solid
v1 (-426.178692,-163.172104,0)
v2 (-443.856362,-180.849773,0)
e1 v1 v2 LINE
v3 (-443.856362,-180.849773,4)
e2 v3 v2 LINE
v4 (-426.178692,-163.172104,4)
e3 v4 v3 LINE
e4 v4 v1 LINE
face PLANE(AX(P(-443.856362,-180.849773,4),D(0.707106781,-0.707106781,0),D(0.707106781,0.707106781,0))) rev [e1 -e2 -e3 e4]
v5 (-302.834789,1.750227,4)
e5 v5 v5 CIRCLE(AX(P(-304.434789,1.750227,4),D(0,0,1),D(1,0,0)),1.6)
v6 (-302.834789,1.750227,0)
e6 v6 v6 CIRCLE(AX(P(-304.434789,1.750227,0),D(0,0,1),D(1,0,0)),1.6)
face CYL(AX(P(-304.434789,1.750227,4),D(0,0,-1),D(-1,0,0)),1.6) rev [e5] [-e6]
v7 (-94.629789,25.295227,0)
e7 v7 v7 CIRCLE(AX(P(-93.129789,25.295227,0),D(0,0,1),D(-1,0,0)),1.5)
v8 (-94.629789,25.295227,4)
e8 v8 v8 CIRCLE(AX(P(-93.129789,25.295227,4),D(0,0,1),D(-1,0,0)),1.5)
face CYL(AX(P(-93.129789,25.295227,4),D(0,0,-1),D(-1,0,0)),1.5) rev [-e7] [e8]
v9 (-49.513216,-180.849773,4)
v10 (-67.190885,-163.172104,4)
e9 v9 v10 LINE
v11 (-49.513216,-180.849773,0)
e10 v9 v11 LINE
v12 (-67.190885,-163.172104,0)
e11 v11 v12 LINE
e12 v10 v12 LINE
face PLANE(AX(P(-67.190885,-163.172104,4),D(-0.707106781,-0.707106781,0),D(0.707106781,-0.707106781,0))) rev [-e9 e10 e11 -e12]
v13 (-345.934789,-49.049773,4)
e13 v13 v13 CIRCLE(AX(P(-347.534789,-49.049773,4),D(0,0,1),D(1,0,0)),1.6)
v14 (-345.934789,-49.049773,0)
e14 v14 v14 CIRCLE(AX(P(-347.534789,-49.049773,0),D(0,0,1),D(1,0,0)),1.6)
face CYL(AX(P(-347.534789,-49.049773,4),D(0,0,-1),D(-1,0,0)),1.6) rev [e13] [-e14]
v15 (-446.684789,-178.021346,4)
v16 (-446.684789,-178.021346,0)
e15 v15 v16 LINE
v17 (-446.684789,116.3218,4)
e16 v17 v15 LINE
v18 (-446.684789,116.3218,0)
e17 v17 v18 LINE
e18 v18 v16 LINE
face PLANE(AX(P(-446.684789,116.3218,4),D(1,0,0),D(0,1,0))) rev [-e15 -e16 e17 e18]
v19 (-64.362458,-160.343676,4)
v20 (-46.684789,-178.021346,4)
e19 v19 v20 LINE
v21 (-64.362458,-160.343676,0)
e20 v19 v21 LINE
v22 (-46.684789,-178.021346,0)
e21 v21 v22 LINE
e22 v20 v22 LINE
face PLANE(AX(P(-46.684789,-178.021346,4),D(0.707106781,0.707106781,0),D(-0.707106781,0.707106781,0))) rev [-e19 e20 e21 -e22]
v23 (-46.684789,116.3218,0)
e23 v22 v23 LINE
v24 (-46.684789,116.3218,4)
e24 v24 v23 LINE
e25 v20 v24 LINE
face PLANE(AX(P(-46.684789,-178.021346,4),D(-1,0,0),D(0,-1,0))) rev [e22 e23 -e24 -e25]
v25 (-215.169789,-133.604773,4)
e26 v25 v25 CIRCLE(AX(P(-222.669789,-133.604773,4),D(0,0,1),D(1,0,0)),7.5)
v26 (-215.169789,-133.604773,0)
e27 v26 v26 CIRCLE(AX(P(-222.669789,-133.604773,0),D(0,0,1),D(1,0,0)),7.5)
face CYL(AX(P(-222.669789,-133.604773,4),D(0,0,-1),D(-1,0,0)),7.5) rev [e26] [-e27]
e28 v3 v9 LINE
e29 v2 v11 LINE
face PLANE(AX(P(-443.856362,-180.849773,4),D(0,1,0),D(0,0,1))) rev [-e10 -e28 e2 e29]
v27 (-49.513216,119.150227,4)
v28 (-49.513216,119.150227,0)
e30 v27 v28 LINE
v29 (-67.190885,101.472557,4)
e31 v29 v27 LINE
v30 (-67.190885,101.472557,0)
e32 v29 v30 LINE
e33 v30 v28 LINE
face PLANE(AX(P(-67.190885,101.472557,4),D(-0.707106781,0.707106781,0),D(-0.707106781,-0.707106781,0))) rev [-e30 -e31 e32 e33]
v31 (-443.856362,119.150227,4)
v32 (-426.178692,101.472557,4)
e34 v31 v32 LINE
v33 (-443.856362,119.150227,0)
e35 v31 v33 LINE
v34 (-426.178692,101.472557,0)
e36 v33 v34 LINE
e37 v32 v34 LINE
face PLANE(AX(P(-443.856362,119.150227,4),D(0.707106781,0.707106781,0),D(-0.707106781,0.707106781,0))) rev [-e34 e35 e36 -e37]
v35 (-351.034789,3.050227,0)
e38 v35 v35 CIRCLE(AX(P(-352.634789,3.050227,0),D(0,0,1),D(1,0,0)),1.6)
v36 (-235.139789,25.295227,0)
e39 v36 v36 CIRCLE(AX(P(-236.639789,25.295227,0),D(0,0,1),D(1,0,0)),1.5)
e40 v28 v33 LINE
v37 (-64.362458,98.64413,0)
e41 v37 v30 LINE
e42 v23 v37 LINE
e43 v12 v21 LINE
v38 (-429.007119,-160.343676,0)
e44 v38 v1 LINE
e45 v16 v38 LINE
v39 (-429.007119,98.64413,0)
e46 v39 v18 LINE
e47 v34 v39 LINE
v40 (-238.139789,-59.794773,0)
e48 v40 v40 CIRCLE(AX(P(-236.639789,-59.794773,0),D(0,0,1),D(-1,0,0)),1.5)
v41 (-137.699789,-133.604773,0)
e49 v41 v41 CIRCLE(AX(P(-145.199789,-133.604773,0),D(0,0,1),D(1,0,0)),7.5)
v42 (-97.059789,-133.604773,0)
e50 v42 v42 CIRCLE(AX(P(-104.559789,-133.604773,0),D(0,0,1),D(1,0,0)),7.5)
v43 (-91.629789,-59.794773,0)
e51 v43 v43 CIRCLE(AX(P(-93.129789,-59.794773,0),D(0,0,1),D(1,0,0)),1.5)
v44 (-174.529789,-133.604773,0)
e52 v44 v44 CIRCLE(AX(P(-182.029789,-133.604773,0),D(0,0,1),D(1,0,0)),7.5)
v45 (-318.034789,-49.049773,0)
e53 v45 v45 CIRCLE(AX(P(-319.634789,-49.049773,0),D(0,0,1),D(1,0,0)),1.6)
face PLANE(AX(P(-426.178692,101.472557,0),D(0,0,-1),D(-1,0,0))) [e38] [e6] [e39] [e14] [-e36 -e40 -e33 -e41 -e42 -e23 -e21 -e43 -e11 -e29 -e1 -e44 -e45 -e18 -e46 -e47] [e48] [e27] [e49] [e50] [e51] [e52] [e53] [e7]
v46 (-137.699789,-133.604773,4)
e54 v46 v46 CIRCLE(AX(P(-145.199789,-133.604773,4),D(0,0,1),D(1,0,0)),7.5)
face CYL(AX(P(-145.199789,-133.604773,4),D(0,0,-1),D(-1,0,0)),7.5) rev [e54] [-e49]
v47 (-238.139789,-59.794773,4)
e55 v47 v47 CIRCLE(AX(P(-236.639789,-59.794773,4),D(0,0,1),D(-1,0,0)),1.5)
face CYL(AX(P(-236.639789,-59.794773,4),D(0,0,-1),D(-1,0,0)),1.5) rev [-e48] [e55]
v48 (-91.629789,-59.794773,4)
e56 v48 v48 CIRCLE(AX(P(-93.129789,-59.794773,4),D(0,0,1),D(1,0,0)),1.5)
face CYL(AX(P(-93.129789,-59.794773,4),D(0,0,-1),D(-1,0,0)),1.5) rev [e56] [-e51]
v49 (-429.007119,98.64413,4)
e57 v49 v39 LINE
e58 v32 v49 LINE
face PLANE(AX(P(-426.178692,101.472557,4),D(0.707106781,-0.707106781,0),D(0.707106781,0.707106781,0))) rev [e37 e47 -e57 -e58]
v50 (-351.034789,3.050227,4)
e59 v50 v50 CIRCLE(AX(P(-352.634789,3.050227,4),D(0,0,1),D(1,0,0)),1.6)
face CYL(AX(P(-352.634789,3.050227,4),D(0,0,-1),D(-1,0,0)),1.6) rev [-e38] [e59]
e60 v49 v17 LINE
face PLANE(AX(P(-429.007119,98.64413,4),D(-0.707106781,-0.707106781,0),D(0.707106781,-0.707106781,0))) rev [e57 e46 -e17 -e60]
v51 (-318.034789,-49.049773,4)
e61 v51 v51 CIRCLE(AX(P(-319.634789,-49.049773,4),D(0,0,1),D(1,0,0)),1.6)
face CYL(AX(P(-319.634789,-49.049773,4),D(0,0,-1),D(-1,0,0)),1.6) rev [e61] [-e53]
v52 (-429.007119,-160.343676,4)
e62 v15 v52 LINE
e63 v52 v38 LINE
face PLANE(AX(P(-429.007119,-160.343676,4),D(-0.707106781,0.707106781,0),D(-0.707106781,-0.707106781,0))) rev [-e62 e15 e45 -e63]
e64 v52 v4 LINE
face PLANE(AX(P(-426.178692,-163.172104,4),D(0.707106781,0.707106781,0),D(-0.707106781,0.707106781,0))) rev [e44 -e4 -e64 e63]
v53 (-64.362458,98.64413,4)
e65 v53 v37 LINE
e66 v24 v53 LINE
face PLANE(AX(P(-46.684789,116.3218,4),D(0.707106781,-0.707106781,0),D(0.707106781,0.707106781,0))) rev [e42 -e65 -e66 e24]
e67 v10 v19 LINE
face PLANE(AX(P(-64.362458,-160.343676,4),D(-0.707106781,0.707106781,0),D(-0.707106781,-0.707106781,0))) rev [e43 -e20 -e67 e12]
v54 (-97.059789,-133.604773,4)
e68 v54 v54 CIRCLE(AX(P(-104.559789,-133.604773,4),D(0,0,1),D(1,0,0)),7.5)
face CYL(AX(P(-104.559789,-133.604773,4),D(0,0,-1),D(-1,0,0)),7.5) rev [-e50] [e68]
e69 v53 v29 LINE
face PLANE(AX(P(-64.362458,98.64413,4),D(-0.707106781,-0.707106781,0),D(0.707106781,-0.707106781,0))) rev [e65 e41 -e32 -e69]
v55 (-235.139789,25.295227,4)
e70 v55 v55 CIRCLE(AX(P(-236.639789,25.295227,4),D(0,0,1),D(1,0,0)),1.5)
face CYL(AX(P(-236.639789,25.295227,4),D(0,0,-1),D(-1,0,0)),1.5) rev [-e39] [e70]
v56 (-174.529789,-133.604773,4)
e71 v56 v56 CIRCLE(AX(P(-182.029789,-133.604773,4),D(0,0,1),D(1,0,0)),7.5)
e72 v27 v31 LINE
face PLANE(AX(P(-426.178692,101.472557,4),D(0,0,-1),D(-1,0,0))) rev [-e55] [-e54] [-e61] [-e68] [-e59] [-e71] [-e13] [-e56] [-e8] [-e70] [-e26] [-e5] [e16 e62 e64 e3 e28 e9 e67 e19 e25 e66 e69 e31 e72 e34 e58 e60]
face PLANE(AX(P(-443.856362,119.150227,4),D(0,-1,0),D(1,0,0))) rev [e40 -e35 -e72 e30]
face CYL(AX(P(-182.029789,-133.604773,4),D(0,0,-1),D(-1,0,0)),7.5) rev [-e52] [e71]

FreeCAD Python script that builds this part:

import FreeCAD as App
import Part
import Sketcher
Q = App.Units.Quantity


def add_polygon(sketch, points):
    """Adds a closed chain of lines whose ends are joined by coincident constraints."""
    first, n = sketch.GeometryCount, len(points)
    for a, b in zip(points, points[1:] + points[:1]):
        sketch.addGeometry(Part.LineSegment(App.Vector(*a, 0), App.Vector(*b, 0)), False)
    for i in range(n):
        sketch.addConstraint(Sketcher.Constraint("Coincident", first + i, 2, first + (i + 1) % n, 1))

doc = App.newDocument("Part")
body = doc.addObject("PartDesign::Body", "Body")

# Sketch on XY plane
sketch1 = body.newObject("Sketcher::SketchObject", "Sketch")
sketch1.AttachmentSupport = (doc.getObject("XY_Plane"), [""])
sketch1.MapMode = "FlatFace"
add_polygon(sketch1, [(-49.513216, 119.150227), (-443.856362, 119.150227), (-426.178692, 101.472557), (-429.007119, 98.64413), (-446.684789, 116.3218), (-446.684789, -178.021346), (-429.007119, -160.343676), (-426.178692, -163.172104), (-443.856362, -180.849773), (-49.513216, -180.849773), (-67.190885, -163.172104), (-64.362458, -160.343676), (-46.684789, -178.021346), (-46.684789, 116.3218), (-64.362458, 98.64413), (-67.190885, 101.472557)])  # lines 0-15
sketch1.addGeometry(Part.Circle(App.Vector(-104.559789, -133.604773, 0), App.Vector(0, 0, 1), 7.5), False)  # 16
sketch1.addGeometry(Part.Circle(App.Vector(-145.199789, -133.604773, 0), App.Vector(0, 0, 1), 7.5), False)  # 17
sketch1.addGeometry(Part.Circle(App.Vector(-182.029789, -133.604773, 0), App.Vector(0, 0, 1), 7.5), False)  # 18
sketch1.addGeometry(Part.Circle(App.Vector(-222.669789, -133.604773, 0), App.Vector(0, 0, 1), 7.5), False)  # 19
sketch1.addGeometry(Part.Circle(App.Vector(-93.129789, -59.794773, 0), App.Vector(0, 0, 1), 1.5), False)  # 20
sketch1.addGeometry(Part.Circle(App.Vector(-236.639789, -59.794773, 0), App.Vector(0, 0, 1), 1.5), False)  # 21
sketch1.addGeometry(Part.Circle(App.Vector(-93.129789, 25.295227, 0), App.Vector(0, 0, 1), 1.5), False)  # 22
sketch1.addGeometry(Part.Circle(App.Vector(-319.634789, -49.049773, 0), App.Vector(0, 0, 1), 1.6), False)  # 23
sketch1.addGeometry(Part.Circle(App.Vector(-347.534789, -49.049773, 0), App.Vector(0, 0, 1), 1.6), False)  # 24
sketch1.addGeometry(Part.Circle(App.Vector(-236.639789, 25.295227, 0), App.Vector(0, 0, 1), 1.5), False)  # 25
sketch1.addGeometry(Part.Circle(App.Vector(-304.434789, 1.750227, 0), App.Vector(0, 0, 1), 1.6), False)  # 26
sketch1.addGeometry(Part.Circle(App.Vector(-352.634789, 3.050227, 0), App.Vector(0, 0, 1), 1.6), False)  # 27
sketch1.addConstraint(Sketcher.Constraint("Horizontal", 0))
sketch1.addConstraint(Sketcher.Constraint("Vertical", 4))
sketch1.addConstraint(Sketcher.Constraint("Horizontal", 8))
sketch1.addConstraint(Sketcher.Constraint("Vertical", 12))
sketch1.addConstraint(Sketcher.Constraint("Equal", 16, 17))
sketch1.addConstraint(Sketcher.Constraint("Equal", 17, 18))
sketch1.addConstraint(Sketcher.Constraint("Equal", 18, 19))
sketch1.addConstraint(Sketcher.Constraint("Equal", 20, 21))
sketch1.addConstraint(Sketcher.Constraint("Equal", 21, 22))
sketch1.addConstraint(Sketcher.Constraint("Equal", 23, 24))
sketch1.addConstraint(Sketcher.Constraint("Equal", 22, 25))
sketch1.addConstraint(Sketcher.Constraint("Equal", 24, 26))
sketch1.addConstraint(Sketcher.Constraint("Equal", 26, 27))
sketch1.addConstraint(Sketcher.Constraint("Perpendicular", 1, 2))
sketch1.addConstraint(Sketcher.Constraint("Perpendicular", 2, 3))
sketch1.addConstraint(Sketcher.Constraint("Perpendicular", 3, 5))
sketch1.addConstraint(Sketcher.Constraint("Perpendicular", 5, 6))
sketch1.addConstraint(Sketcher.Constraint("Perpendicular", 6, 7))
sketch1.addConstraint(Sketcher.Constraint("Perpendicular", 7, 9))
sketch1.addConstraint(Sketcher.Constraint("Perpendicular", 9, 10))
sketch1.addConstraint(Sketcher.Constraint("Perpendicular", 10, 11))
sketch1.addConstraint(Sketcher.Constraint("Perpendicular", 11, 13))
sketch1.addConstraint(Sketcher.Constraint("Perpendicular", 13, 14))
sketch1.addConstraint(Sketcher.Constraint("Perpendicular", 14, 15))
sketch1.addConstraint(Sketcher.Constraint("Horizontal", 16, 3, 17, 3))
sketch1.addConstraint(Sketcher.Constraint("Horizontal", 17, 3, 18, 3))
sketch1.addConstraint(Sketcher.Constraint("Horizontal", 18, 3, 19, 3))
sketch1.addConstraint(Sketcher.Constraint("Horizontal", 20, 3, 21, 3))
sketch1.addConstraint(Sketcher.Constraint("Horizontal", 23, 3, 24, 3))
sketch1.addConstraint(Sketcher.Constraint("Horizontal", 22, 3, 25, 3))
sketch1.addConstraint(Sketcher.Constraint("Horizontal", 6, 2, 9, 2))
sketch1.addConstraint(Sketcher.Constraint("Horizontal", 5, 2, 10, 2))
sketch1.addConstraint(Sketcher.Constraint("Horizontal", 4, 2, 11, 2))
sketch1.addConstraint(Sketcher.Constraint("Horizontal", 3, 2, 12, 2))
sketch1.addConstraint(Sketcher.Constraint("Horizontal", 2, 2, 13, 2))
sketch1.addConstraint(Sketcher.Constraint("Horizontal", 1, 2, 14, 2))
sketch1.addConstraint(Sketcher.Constraint("Vertical", 20, 3, 22, 3))
sketch1.addConstraint(Sketcher.Constraint("Vertical", 21, 3, 25, 3))
sketch1.addConstraint(Sketcher.Constraint("Vertical", 2, 2, 5, 2))
sketch1.addConstraint(Sketcher.Constraint("Vertical", 1, 2, 6, 2))
sketch1.addConstraint(Sketcher.Constraint("Vertical", 0, 2, 7, 2))
sketch1.addConstraint(Sketcher.Constraint("Vertical", 10, 2, 13, 2))
sketch1.addConstraint(Sketcher.Constraint("Equal", 1, 3))
sketch1.addConstraint(Sketcher.Constraint("Diameter", 16, Q("15 mm")))
sketch1.addConstraint(Sketcher.Constraint("Diameter", 20, Q("3 mm")))
sketch1.addConstraint(Sketcher.Constraint("Diameter", 23, Q("3.2 mm")))
sketch1.addConstraint(Sketcher.Constraint("Distance", 1, Q("25 mm")))
sketch1.addConstraint(Sketcher.Constraint("Distance", 2, Q("4 mm")))
sketch1.addConstraint(Sketcher.Constraint("DistanceX", 27, 3, 23, 3, Q("33 mm")))
sketch1.addConstraint(Sketcher.Constraint("DistanceX", 18, 3, 20, 3, Q("88.9 mm")))
sketch1.addConstraint(Sketcher.Constraint("DistanceY", 16, 3, 22, 3, Q("158.9 mm")))
sketch1.addConstraint(Sketcher.Constraint("DistanceX", 24, 3, 23, 3, Q("27.9 mm")))
sketch1.addConstraint(Sketcher.Constraint("DistanceX", 23, 3, 26, 3, Q("15.2 mm")))
sketch1.addConstraint(Sketcher.Constraint("DistanceY", 23, 3, 26, 3, Q("50.8 mm")))
sketch1.addConstraint(Sketcher.Constraint("DistanceY", 26, 3, 27, 3, Q("1.3 mm")))
sketch1.addConstraint(Sketcher.Constraint("DistanceY", 27, 3, 0, 2, Q("116.1 mm")))
sketch1.addConstraint(Sketcher.Constraint("DistanceY", 7, 2, 24, 3, Q("131.8 mm")))
sketch1.addConstraint(Sketcher.Constraint("DistanceX", 17, 3, 16, 3, Q("40.64 mm")))
sketch1.addConstraint(Sketcher.Constraint("DistanceX", 18, 3, 17, 3, Q("36.83 mm")))
sketch1.addConstraint(Sketcher.Constraint("DistanceX", 19, 3, 18, 3, Q("40.64 mm")))
sketch1.addConstraint(Sketcher.Constraint("DistanceY", 16, 3, 20, 3, Q("73.81 mm")))
sketch1.addConstraint(Sketcher.Constraint("DistanceX", 21, 3, 19, 3, Q("13.97 mm")))
sketch1.addConstraint(Sketcher.Constraint("DistanceX", 3, 2, 27, 3, Q("94.05 mm")))
sketch1.addConstraint(Sketcher.Constraint("DistanceX", 23, 3, 21, 3, Q("82.995 mm")))
sketch1.addConstraint(Sketcher.Constraint("DistanceY", 21, 3, 23, 3, Q("10.745 mm")))
sketch1.addConstraint(Sketcher.Constraint("DistanceX", 16, 3, 11, 2, Q("57.875 mm")))
sketch1.addConstraint(Sketcher.Constraint("DistanceY", -1, 1, 3, 2, Q("116.3218 mm")))
sketch1.addConstraint(Sketcher.Constraint("DistanceX", 16, 3, -1, 1, Q("104.559789 mm")))
pad1 = body.newObject("PartDesign::Pad", "Pad")
pad1.Profile = sketch1
pad1.Length = 4

doc.recompute()
